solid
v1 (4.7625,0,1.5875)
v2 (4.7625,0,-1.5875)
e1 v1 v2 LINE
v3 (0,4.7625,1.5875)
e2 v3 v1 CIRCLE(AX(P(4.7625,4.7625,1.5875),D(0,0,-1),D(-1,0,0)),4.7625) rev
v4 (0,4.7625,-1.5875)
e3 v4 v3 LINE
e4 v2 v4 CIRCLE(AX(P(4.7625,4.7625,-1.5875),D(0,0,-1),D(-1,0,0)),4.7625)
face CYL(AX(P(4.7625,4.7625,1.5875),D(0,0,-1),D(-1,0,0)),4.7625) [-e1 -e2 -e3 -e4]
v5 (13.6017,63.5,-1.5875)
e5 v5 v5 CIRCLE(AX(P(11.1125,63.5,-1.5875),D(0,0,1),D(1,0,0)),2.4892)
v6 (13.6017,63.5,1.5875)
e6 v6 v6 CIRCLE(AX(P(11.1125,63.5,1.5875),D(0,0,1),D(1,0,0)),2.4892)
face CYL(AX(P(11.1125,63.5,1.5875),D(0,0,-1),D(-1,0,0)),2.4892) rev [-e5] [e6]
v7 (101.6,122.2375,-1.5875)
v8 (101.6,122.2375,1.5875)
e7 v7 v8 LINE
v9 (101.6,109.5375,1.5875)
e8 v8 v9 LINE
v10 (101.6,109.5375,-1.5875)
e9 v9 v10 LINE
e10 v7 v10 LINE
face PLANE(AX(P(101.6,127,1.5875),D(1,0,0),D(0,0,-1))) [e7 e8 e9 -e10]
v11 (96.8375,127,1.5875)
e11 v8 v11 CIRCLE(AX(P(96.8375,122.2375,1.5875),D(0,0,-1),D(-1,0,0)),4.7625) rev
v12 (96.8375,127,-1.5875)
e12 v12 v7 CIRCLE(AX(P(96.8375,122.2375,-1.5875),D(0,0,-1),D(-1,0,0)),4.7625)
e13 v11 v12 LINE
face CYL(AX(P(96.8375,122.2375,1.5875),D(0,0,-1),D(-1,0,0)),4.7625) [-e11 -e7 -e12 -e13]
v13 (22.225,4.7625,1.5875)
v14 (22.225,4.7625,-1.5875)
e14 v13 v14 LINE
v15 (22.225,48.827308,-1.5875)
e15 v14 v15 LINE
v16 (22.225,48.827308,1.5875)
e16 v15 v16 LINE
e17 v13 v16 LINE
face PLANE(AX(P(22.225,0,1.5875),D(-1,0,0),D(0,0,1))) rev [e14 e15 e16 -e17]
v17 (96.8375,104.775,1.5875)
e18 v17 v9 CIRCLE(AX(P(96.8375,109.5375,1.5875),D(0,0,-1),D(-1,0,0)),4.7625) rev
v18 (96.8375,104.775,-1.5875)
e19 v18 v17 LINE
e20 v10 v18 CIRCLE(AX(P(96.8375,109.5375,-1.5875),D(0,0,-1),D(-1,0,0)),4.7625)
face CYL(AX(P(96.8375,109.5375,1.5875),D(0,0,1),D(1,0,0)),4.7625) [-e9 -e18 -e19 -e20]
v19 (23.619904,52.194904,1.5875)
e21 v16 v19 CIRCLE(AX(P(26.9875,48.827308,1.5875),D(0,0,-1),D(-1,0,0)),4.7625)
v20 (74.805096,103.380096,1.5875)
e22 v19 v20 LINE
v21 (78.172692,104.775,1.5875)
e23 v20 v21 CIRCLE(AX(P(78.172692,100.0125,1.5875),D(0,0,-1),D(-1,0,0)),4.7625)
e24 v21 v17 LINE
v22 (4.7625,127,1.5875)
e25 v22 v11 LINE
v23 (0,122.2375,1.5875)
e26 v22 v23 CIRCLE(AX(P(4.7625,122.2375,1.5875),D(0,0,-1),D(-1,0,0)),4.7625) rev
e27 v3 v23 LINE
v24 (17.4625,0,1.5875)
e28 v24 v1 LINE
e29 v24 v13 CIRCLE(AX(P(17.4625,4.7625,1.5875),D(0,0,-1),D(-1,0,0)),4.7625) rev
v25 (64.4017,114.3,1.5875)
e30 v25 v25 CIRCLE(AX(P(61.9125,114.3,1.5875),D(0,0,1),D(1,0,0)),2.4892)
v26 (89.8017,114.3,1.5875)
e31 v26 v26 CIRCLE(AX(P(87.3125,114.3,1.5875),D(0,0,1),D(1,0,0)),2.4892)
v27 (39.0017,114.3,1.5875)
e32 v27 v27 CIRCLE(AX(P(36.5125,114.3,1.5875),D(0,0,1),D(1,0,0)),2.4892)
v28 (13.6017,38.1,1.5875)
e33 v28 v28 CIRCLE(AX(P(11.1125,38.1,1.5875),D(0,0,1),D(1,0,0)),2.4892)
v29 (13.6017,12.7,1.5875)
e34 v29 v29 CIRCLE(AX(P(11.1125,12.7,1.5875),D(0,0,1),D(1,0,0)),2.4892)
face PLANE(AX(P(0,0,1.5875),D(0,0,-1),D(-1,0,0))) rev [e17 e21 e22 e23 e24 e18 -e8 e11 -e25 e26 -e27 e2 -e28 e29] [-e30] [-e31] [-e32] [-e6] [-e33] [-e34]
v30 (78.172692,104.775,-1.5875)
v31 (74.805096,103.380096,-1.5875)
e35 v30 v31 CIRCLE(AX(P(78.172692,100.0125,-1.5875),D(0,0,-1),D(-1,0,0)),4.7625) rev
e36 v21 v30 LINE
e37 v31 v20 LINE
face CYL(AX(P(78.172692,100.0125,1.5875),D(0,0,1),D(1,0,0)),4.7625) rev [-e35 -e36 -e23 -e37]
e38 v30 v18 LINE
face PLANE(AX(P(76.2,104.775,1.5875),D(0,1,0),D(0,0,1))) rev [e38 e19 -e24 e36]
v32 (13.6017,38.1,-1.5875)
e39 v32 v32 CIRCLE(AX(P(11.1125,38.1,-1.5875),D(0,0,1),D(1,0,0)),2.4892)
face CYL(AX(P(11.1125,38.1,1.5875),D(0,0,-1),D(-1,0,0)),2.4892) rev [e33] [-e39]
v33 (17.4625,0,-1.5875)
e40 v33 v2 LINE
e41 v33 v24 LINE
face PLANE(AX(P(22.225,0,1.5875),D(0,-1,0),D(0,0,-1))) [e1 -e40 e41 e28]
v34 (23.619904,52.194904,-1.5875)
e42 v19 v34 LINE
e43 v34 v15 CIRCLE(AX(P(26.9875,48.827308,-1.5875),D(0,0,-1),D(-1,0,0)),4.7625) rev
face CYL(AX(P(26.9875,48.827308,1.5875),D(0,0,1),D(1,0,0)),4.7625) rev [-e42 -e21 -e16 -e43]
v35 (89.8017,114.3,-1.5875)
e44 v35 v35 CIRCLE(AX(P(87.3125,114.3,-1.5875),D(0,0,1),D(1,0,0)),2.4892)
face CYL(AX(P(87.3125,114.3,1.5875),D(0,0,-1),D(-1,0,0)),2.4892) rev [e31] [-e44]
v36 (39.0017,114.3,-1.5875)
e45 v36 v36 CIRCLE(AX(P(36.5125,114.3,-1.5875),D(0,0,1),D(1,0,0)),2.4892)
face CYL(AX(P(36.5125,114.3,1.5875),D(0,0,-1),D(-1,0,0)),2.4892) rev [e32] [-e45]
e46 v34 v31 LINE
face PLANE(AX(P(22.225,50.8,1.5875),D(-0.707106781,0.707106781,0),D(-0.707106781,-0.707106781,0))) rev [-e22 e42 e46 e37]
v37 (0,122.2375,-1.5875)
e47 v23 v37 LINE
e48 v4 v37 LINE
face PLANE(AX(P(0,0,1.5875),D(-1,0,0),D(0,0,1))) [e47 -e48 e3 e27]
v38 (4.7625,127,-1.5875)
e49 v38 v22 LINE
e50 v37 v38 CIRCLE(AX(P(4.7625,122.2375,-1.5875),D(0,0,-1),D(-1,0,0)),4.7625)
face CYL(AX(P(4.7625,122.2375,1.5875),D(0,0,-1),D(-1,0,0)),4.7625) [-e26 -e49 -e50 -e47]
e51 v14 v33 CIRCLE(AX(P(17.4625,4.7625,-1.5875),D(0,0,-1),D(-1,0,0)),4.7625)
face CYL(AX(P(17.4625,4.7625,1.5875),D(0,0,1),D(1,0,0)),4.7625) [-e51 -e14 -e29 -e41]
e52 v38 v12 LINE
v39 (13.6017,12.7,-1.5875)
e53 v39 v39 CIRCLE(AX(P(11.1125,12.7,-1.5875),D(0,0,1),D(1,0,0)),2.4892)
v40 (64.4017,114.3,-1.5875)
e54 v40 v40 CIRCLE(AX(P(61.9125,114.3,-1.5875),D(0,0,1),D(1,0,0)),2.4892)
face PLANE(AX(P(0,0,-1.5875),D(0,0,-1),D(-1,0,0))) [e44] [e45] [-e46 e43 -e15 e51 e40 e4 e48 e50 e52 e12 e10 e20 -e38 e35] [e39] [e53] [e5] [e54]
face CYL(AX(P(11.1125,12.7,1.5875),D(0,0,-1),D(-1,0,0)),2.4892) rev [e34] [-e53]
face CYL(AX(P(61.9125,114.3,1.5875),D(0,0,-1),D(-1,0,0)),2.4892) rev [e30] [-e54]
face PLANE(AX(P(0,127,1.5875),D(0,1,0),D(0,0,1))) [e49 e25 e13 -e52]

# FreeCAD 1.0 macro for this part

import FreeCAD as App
import Part
import Sketcher
Q = App.Units.Quantity


def edges_at(feature, points):
    """Names of the edges that pass closest to the given points."""
    edges = feature.Shape.Edges
    near = lambda p: min(range(len(edges)), key=lambda i: edges[i].distToShape(Part.Vertex(*p))[0])
    return sorted({f"Edge{near(p) + 1}" for p in points})


def add_polygon(sketch, points):
    """Adds a closed chain of lines whose ends are joined by coincident constraints."""
    first, n = sketch.GeometryCount, len(points)
    for a, b in zip(points, points[1:] + points[:1]):
        sketch.addGeometry(Part.LineSegment(App.Vector(*a, 0), App.Vector(*b, 0)), False)
    for i in range(n):
        sketch.addConstraint(Sketcher.Constraint("Coincident", first + i, 2, first + (i + 1) % n, 1))

doc = App.newDocument("Part")
body = doc.addObject("PartDesign::Body", "Body")

# Sketch on XY plane
sketch1 = body.newObject("Sketcher::SketchObject", "Sketch")
sketch1.AttachmentSupport = (doc.getObject("XY_Plane"), [""])
sketch1.MapMode = "FlatFace"
add_polygon(sketch1, [(0, 127), (0, 0), (22.225, 0), (22.225, 50.8), (76.2, 104.775), (101.6, 104.775), (101.6, 127)])  # lines 0-6
sketch1.addGeometry(Part.Circle(App.Vector(11.1125, 12.7, 0), App.Vector(0, 0, 1), 2.4892), False)  # 7
sketch1.addGeometry(Part.Circle(App.Vector(11.1125, 38.1, 0), App.Vector(0, 0, 1), 2.4892), False)  # 8
sketch1.addGeometry(Part.Circle(App.Vector(87.3125, 114.3, 0), App.Vector(0, 0, 1), 2.4892), False)  # 9
sketch1.addGeometry(Part.Circle(App.Vector(61.9125, 114.3, 0), App.Vector(0, 0, 1), 2.4892), False)  # 10
sketch1.addGeometry(Part.Circle(App.Vector(11.1125, 63.5, 0), App.Vector(0, 0, 1), 2.4892), False)  # 11
sketch1.addGeometry(Part.Circle(App.Vector(36.5125, 114.3, 0), App.Vector(0, 0, 1), 2.4892), False)  # 12
sketch1.addConstraint([
    Sketcher.Constraint("Vertical", 0),
    Sketcher.Constraint("Horizontal", 1),
    Sketcher.Constraint("Vertical", 2),
    Sketcher.Constraint("Horizontal", 4),
    Sketcher.Constraint("Vertical", 5),
    Sketcher.Constraint("Horizontal", 6),
    Sketcher.Constraint("Coincident", 0, 2, -1, 1),
    Sketcher.Constraint("Equal", 7, 8),
    Sketcher.Constraint("Equal", 8, 9),
    Sketcher.Constraint("Equal", 9, 10),
    Sketcher.Constraint("Equal", 10, 11),
    Sketcher.Constraint("Equal", 11, 12),
    Sketcher.Constraint("Horizontal", 9, 3, 10, 3),
    Sketcher.Constraint("Horizontal", 10, 3, 12, 3),
    Sketcher.Constraint("Vertical", 7, 3, 8, 3),
    Sketcher.Constraint("Vertical", 8, 3, 11, 3),
    Sketcher.Constraint("Equal", 1, 5),
    Sketcher.Constraint("DistanceX", 4, 1, 4, 2, Q("1 in")),
    Sketcher.Constraint("DistanceX", 6, 2, 6, 1, Q("4 in")),
    Sketcher.Constraint("DistanceY", 0, 2, 0, 1, Q("5 in")),
    Sketcher.Constraint("DistanceY", 2, 1, 2, 2, Q("2 in")),
    Sketcher.Constraint("Diameter", 7, Q("0.196 in")),
    Sketcher.Constraint("DistanceY", 7, 3, 8, 3, Q("1 in")),
    Sketcher.Constraint("DistanceX", 8, 3, 9, 3, Q("3 in")),
    Sketcher.Constraint("DistanceY", 8, 3, 9, 3, Q("3 in")),
    Sketcher.Constraint("DistanceX", 10, 3, 9, 3, Q("1 in")),
    Sketcher.Constraint("DistanceY", 8, 3, 11, 3, Q("1 in")),
    Sketcher.Constraint("DistanceX", 12, 3, 10, 3, Q("1 in")),
    Sketcher.Constraint("DistanceY", -1, 1, 7, 3, Q("0.5 in")),
    Sketcher.Constraint("DistanceX", 1, 1, 1, 2, Q("0.875 in")),
    Sketcher.Constraint("DistanceX", -1, 1, 7, 3, Q("0.4375 in")),
])
pad1 = body.newObject("PartDesign::Pad", "Pad")
pad1.Profile = sketch1
pad1.Length = Q("0.125 in")
pad1.Midplane = True
doc.recompute()

fillet = body.newObject("PartDesign::Fillet", "Fillet")
fillet.Base = (pad1, edges_at(pad1, [
    (22.225, 0, 0),
    (22.225, 50.8, 0),
    (76.2, 104.775, 0),
    (101.6, 104.775, 0),
    (101.6, 127, 0),
    (0, 127, 0),
    (0, 0, 0),
]))
fillet.Radius = Q("0.1875 in")

doc.recompute()
